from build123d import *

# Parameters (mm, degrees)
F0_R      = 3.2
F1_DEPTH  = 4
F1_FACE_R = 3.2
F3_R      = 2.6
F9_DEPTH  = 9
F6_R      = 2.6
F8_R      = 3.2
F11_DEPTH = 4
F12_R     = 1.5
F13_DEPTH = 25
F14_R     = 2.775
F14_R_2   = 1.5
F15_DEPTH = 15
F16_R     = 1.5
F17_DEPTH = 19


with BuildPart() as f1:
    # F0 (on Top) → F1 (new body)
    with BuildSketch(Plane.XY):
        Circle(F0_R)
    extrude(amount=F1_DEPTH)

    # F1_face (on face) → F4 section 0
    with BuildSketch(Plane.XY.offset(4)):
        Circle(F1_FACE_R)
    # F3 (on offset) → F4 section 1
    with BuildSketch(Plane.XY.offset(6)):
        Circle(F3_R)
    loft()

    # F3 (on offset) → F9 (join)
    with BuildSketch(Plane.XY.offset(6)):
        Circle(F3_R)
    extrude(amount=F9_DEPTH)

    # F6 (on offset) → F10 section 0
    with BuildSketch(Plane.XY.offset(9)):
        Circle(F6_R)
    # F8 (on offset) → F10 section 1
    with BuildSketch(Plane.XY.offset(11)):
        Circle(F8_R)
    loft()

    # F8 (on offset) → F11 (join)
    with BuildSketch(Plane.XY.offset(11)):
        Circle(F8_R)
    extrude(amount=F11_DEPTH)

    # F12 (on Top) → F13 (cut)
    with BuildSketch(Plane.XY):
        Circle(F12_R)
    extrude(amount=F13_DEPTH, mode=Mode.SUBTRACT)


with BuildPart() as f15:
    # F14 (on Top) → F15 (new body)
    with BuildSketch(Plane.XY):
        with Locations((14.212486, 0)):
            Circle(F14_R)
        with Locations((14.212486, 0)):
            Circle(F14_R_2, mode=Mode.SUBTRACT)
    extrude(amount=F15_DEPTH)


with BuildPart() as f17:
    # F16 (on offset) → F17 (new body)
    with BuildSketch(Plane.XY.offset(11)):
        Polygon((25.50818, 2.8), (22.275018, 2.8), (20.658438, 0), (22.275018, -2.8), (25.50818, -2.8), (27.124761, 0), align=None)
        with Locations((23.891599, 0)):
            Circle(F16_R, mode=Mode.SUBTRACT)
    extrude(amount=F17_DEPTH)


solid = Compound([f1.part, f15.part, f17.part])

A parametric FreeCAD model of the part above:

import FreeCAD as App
import Part
import Sketcher
from FreeCAD import Vector
Q = App.Units.Quantity

doc = App.newDocument("Part")
body = doc.addObject("PartDesign::Body", "Body")

sketch1 = body.newObject("Sketcher::SketchObject", "Sketch")
sketch1.AttachmentSupport = (doc.getObject("XY_Plane"), [""])
sketch1.MapMode = "FlatFace"
sketch1.addGeometry(Part.Circle(Vector(0, 0, 0), Vector(0, 0, 1), 3.2), False)
sketch1.addConstraint(Sketcher.Constraint("Coincident", 0, 3, -1, 1))
sketch1.addConstraint(Sketcher.Constraint("Diameter", 0, 6.4))
pad1 = body.newObject("PartDesign::Pad", "Pad")
pad1.Profile = sketch1
pad1.Length = 4

sketch2 = body.newObject("Sketcher::SketchObject", "Sketch001")
sketch2.AttachmentSupport = (doc.getObject("XY_Plane"), [""])
sketch2.MapMode = "FlatFace"
sketch2.AttachmentOffset = App.Placement(Vector(0, 0, 4), App.Rotation())
sketch2.addGeometry(Part.Circle(Vector(0, 0, 0), Vector(0, 0, 1), 3.2), False)
sketch2.addConstraint(Sketcher.Constraint("Coincident", 0, 3, -1, 1))
sketch2.addConstraint(Sketcher.Constraint("Diameter", 0, 6.4))

sketch3 = body.newObject("Sketcher::SketchObject", "Sketch002")
sketch3.AttachmentSupport = (doc.getObject("XY_Plane"), [""])
sketch3.MapMode = "FlatFace"
sketch3.AttachmentOffset = App.Placement(Vector(0, 0, 6), App.Rotation())
sketch3.addGeometry(Part.Circle(Vector(0, 0, 0), Vector(0, 0, 1), 2.6), False)
sketch3.addConstraint(Sketcher.Constraint("Coincident", 0, 3, -1, 1))
sketch3.addConstraint(Sketcher.Constraint("Diameter", 0, 5.2))

additiveloft = body.newObject("PartDesign::AdditiveLoft", "AdditiveLoft")
additiveloft.Profile = sketch2
additiveloft.Sections = [sketch3]

sketch4 = body.newObject("Sketcher::SketchObject", "Sketch003")
sketch4.AttachmentSupport = (doc.getObject("XY_Plane"), [""])
sketch4.MapMode = "FlatFace"
sketch4.AttachmentOffset = App.Placement(Vector(0, 0, 6), App.Rotation())
sketch4.addGeometry(Part.Circle(Vector(0, 0, 0), Vector(0, 0, 1), 2.6), False)
sketch4.addConstraint(Sketcher.Constraint("Coincident", 0, 3, -1, 1))
sketch4.addConstraint(Sketcher.Constraint("Diameter", 0, 5.2))
pad2 = body.newObject("PartDesign::Pad", "Pad001")
pad2.Profile = sketch4
pad2.Length = 9

sketch5 = body.newObject("Sketcher::SketchObject", "Sketch004")
sketch5.AttachmentSupport = (doc.getObject("XY_Plane"), [""])
sketch5.MapMode = "FlatFace"
sketch5.AttachmentOffset = App.Placement(Vector(0, 0, 9), App.Rotation())
sketch5.addGeometry(Part.Circle(Vector(0, 0, 0), Vector(0, 0, 1), 2.6), False)
sketch5.addConstraint(Sketcher.Constraint("Coincident", 0, 3, -1, 1))
sketch5.addConstraint(Sketcher.Constraint("Diameter", 0, 5.2))

sketch6 = body.newObject("Sketcher::SketchObject", "Sketch005")
sketch6.AttachmentSupport = (doc.getObject("XY_Plane"), [""])
sketch6.MapMode = "FlatFace"
sketch6.AttachmentOffset = App.Placement(Vector(0, 0, 11), App.Rotation())
sketch6.addGeometry(Part.Circle(Vector(0, 0, 0), Vector(0, 0, 1), 3.2), False)
sketch6.addConstraint(Sketcher.Constraint("Coincident", 0, 3, -1, 1))
sketch6.addConstraint(Sketcher.Constraint("Diameter", 0, 6.4))

additiveloft2 = body.newObject("PartDesign::AdditiveLoft", "AdditiveLoft001")
additiveloft2.Profile = sketch5
additiveloft2.Sections = [sketch6]

sketch7 = body.newObject("Sketcher::SketchObject", "Sketch006")
sketch7.AttachmentSupport = (doc.getObject("XY_Plane"), [""])
sketch7.MapMode = "FlatFace"
sketch7.AttachmentOffset = App.Placement(Vector(0, 0, 11), App.Rotation())
sketch7.addGeometry(Part.Circle(Vector(0, 0, 0), Vector(0, 0, 1), 3.2), False)
sketch7.addConstraint(Sketcher.Constraint("Coincident", 0, 3, -1, 1))
sketch7.addConstraint(Sketcher.Constraint("Diameter", 0, 6.4))
pad3 = body.newObject("PartDesign::Pad", "Pad002")
pad3.Profile = sketch7
pad3.Length = 4

sketch8 = body.newObject("Sketcher::SketchObject", "Sketch007")
sketch8.AttachmentSupport = (doc.getObject("XY_Plane"), [""])
sketch8.MapMode = "FlatFace"
sketch8.addGeometry(Part.Circle(Vector(0, 0, 0), Vector(0, 0, 1), 1.5), False)
sketch8.addConstraint(Sketcher.Constraint("Coincident", 0, 3, -1, 1))
sketch8.addConstraint(Sketcher.Constraint("Diameter", 0, 3.0))
pocket1 = body.newObject("PartDesign::Pocket", "Pocket")
pocket1.Profile = sketch8
pocket1.Length = 25
pocket1.Reversed = True
body2 = doc.addObject("PartDesign::Body", "Body001")

sketch9 = body2.newObject("Sketcher::SketchObject", "Sketch008")
sketch9.AttachmentSupport = (doc.getObject("XY_Plane001"), [""])
sketch9.MapMode = "FlatFace"
sketch9.addGeometry(Part.Circle(Vector(14.2, 0, 0), Vector(0, 0, 1), 2.8), False)
sketch9.addGeometry(Part.Circle(Vector(14.2, 0, 0), Vector(0, 0, 1), 1.5), False)
sketch9.addConstraint(Sketcher.Constraint("Coincident", 1, 3, 0, 3))
sketch9.addConstraint(Sketcher.Constraint("PointOnObject", 0, 3, -1))
sketch9.addConstraint(Sketcher.Constraint("Diameter", 1, 3.0))
sketch9.addConstraint(Sketcher.Constraint("Diameter", 0, 5.55))
sketch9.addConstraint(Sketcher.Constraint("DistanceX", -1, 1, 0, 3, 14.212486))
pad4 = body2.newObject("PartDesign::Pad", "Pad003")
pad4.Profile = sketch9
pad4.Length = 15
body3 = doc.addObject("PartDesign::Body", "Body002")

sketch10 = body3.newObject("Sketcher::SketchObject", "Sketch009")
sketch10.AttachmentSupport = (doc.getObject("XY_Plane002"), [""])
sketch10.MapMode = "FlatFace"
sketch10.AttachmentOffset = App.Placement(Vector(0, 0, 11), App.Rotation())
sketch10.addGeometry(Part.LineSegment(Vector(25.5, 2.8, 0), Vector(22.3, 2.8, 0)), False)
sketch10.addGeometry(Part.LineSegment(Vector(22.3, 2.8, 0), Vector(20.7, 0, 0)), False)
sketch10.addGeometry(Part.LineSegment(Vector(20.7, 0, 0), Vector(22.3, -2.8, 0)), False)
sketch10.addGeometry(Part.LineSegment(Vector(22.3, -2.8, 0), Vector(25.5, -2.8, 0)), False)
sketch10.addGeometry(Part.LineSegment(Vector(25.5, -2.8, 0), Vector(27.1, 0, 0)), False)
sketch10.addGeometry(Part.LineSegment(Vector(27.1, 0, 0), Vector(25.5, 2.8, 0)), False)
sketch10.addGeometry(Part.Circle(Vector(23.9, 0, 0), Vector(0, 0, 1), 1.5), False)
sketch10.addConstraint(Sketcher.Constraint("Coincident", 0, 2, 1, 1))
sketch10.addConstraint(Sketcher.Constraint("Coincident", 1, 2, 2, 1))
sketch10.addConstraint(Sketcher.Constraint("Coincident", 2, 2, 3, 1))
sketch10.addConstraint(Sketcher.Constraint("Coincident", 3, 2, 4, 1))
sketch10.addConstraint(Sketcher.Constraint("Coincident", 4, 2, 5, 1))
sketch10.addConstraint(Sketcher.Constraint("Coincident", 5, 2, 0, 1))
sketch10.addConstraint(Sketcher.Constraint("Horizontal", 0))
sketch10.addConstraint(Sketcher.Constraint("Horizontal", 3))
sketch10.addConstraint(Sketcher.Constraint("Symmetric", 0, 2, 2, 2, -1))
sketch10.addConstraint(Sketcher.Constraint("PointOnObject", 6, 3, -1))
sketch10.addConstraint(Sketcher.Constraint("PointOnObject", 1, 2, -1))
sketch10.addConstraint(Sketcher.Constraint("PointOnObject", 4, 2, -1))
sketch10.addConstraint(Sketcher.Constraint("Parallel", 1, 4))
sketch10.addConstraint(Sketcher.Constraint("Parallel", 2, 5))
sketch10.addConstraint(Sketcher.Constraint("Diameter", 6, 3.0))
sketch10.addConstraint(Sketcher.Constraint("Angle", 1, Q("-119.999988 deg")))
sketch10.addConstraint(Sketcher.Constraint("DistanceY", -1, 1, 0, 2, 2.8))
sketch10.addConstraint(Sketcher.Constraint("DistanceX", -1, 1, 6, 3, 23.891599))
sketch10.addConstraint(Sketcher.Constraint("DistanceX", 0, 2, 0, 1, 3.233162))
sketch10.addConstraint(Sketcher.Constraint("DistanceX", -1, 1, 1, 2, 20.658438))
pad5 = body3.newObject("PartDesign::Pad", "Pad004")
pad5.Profile = sketch10
pad5.Length = 19

doc.recompute()
